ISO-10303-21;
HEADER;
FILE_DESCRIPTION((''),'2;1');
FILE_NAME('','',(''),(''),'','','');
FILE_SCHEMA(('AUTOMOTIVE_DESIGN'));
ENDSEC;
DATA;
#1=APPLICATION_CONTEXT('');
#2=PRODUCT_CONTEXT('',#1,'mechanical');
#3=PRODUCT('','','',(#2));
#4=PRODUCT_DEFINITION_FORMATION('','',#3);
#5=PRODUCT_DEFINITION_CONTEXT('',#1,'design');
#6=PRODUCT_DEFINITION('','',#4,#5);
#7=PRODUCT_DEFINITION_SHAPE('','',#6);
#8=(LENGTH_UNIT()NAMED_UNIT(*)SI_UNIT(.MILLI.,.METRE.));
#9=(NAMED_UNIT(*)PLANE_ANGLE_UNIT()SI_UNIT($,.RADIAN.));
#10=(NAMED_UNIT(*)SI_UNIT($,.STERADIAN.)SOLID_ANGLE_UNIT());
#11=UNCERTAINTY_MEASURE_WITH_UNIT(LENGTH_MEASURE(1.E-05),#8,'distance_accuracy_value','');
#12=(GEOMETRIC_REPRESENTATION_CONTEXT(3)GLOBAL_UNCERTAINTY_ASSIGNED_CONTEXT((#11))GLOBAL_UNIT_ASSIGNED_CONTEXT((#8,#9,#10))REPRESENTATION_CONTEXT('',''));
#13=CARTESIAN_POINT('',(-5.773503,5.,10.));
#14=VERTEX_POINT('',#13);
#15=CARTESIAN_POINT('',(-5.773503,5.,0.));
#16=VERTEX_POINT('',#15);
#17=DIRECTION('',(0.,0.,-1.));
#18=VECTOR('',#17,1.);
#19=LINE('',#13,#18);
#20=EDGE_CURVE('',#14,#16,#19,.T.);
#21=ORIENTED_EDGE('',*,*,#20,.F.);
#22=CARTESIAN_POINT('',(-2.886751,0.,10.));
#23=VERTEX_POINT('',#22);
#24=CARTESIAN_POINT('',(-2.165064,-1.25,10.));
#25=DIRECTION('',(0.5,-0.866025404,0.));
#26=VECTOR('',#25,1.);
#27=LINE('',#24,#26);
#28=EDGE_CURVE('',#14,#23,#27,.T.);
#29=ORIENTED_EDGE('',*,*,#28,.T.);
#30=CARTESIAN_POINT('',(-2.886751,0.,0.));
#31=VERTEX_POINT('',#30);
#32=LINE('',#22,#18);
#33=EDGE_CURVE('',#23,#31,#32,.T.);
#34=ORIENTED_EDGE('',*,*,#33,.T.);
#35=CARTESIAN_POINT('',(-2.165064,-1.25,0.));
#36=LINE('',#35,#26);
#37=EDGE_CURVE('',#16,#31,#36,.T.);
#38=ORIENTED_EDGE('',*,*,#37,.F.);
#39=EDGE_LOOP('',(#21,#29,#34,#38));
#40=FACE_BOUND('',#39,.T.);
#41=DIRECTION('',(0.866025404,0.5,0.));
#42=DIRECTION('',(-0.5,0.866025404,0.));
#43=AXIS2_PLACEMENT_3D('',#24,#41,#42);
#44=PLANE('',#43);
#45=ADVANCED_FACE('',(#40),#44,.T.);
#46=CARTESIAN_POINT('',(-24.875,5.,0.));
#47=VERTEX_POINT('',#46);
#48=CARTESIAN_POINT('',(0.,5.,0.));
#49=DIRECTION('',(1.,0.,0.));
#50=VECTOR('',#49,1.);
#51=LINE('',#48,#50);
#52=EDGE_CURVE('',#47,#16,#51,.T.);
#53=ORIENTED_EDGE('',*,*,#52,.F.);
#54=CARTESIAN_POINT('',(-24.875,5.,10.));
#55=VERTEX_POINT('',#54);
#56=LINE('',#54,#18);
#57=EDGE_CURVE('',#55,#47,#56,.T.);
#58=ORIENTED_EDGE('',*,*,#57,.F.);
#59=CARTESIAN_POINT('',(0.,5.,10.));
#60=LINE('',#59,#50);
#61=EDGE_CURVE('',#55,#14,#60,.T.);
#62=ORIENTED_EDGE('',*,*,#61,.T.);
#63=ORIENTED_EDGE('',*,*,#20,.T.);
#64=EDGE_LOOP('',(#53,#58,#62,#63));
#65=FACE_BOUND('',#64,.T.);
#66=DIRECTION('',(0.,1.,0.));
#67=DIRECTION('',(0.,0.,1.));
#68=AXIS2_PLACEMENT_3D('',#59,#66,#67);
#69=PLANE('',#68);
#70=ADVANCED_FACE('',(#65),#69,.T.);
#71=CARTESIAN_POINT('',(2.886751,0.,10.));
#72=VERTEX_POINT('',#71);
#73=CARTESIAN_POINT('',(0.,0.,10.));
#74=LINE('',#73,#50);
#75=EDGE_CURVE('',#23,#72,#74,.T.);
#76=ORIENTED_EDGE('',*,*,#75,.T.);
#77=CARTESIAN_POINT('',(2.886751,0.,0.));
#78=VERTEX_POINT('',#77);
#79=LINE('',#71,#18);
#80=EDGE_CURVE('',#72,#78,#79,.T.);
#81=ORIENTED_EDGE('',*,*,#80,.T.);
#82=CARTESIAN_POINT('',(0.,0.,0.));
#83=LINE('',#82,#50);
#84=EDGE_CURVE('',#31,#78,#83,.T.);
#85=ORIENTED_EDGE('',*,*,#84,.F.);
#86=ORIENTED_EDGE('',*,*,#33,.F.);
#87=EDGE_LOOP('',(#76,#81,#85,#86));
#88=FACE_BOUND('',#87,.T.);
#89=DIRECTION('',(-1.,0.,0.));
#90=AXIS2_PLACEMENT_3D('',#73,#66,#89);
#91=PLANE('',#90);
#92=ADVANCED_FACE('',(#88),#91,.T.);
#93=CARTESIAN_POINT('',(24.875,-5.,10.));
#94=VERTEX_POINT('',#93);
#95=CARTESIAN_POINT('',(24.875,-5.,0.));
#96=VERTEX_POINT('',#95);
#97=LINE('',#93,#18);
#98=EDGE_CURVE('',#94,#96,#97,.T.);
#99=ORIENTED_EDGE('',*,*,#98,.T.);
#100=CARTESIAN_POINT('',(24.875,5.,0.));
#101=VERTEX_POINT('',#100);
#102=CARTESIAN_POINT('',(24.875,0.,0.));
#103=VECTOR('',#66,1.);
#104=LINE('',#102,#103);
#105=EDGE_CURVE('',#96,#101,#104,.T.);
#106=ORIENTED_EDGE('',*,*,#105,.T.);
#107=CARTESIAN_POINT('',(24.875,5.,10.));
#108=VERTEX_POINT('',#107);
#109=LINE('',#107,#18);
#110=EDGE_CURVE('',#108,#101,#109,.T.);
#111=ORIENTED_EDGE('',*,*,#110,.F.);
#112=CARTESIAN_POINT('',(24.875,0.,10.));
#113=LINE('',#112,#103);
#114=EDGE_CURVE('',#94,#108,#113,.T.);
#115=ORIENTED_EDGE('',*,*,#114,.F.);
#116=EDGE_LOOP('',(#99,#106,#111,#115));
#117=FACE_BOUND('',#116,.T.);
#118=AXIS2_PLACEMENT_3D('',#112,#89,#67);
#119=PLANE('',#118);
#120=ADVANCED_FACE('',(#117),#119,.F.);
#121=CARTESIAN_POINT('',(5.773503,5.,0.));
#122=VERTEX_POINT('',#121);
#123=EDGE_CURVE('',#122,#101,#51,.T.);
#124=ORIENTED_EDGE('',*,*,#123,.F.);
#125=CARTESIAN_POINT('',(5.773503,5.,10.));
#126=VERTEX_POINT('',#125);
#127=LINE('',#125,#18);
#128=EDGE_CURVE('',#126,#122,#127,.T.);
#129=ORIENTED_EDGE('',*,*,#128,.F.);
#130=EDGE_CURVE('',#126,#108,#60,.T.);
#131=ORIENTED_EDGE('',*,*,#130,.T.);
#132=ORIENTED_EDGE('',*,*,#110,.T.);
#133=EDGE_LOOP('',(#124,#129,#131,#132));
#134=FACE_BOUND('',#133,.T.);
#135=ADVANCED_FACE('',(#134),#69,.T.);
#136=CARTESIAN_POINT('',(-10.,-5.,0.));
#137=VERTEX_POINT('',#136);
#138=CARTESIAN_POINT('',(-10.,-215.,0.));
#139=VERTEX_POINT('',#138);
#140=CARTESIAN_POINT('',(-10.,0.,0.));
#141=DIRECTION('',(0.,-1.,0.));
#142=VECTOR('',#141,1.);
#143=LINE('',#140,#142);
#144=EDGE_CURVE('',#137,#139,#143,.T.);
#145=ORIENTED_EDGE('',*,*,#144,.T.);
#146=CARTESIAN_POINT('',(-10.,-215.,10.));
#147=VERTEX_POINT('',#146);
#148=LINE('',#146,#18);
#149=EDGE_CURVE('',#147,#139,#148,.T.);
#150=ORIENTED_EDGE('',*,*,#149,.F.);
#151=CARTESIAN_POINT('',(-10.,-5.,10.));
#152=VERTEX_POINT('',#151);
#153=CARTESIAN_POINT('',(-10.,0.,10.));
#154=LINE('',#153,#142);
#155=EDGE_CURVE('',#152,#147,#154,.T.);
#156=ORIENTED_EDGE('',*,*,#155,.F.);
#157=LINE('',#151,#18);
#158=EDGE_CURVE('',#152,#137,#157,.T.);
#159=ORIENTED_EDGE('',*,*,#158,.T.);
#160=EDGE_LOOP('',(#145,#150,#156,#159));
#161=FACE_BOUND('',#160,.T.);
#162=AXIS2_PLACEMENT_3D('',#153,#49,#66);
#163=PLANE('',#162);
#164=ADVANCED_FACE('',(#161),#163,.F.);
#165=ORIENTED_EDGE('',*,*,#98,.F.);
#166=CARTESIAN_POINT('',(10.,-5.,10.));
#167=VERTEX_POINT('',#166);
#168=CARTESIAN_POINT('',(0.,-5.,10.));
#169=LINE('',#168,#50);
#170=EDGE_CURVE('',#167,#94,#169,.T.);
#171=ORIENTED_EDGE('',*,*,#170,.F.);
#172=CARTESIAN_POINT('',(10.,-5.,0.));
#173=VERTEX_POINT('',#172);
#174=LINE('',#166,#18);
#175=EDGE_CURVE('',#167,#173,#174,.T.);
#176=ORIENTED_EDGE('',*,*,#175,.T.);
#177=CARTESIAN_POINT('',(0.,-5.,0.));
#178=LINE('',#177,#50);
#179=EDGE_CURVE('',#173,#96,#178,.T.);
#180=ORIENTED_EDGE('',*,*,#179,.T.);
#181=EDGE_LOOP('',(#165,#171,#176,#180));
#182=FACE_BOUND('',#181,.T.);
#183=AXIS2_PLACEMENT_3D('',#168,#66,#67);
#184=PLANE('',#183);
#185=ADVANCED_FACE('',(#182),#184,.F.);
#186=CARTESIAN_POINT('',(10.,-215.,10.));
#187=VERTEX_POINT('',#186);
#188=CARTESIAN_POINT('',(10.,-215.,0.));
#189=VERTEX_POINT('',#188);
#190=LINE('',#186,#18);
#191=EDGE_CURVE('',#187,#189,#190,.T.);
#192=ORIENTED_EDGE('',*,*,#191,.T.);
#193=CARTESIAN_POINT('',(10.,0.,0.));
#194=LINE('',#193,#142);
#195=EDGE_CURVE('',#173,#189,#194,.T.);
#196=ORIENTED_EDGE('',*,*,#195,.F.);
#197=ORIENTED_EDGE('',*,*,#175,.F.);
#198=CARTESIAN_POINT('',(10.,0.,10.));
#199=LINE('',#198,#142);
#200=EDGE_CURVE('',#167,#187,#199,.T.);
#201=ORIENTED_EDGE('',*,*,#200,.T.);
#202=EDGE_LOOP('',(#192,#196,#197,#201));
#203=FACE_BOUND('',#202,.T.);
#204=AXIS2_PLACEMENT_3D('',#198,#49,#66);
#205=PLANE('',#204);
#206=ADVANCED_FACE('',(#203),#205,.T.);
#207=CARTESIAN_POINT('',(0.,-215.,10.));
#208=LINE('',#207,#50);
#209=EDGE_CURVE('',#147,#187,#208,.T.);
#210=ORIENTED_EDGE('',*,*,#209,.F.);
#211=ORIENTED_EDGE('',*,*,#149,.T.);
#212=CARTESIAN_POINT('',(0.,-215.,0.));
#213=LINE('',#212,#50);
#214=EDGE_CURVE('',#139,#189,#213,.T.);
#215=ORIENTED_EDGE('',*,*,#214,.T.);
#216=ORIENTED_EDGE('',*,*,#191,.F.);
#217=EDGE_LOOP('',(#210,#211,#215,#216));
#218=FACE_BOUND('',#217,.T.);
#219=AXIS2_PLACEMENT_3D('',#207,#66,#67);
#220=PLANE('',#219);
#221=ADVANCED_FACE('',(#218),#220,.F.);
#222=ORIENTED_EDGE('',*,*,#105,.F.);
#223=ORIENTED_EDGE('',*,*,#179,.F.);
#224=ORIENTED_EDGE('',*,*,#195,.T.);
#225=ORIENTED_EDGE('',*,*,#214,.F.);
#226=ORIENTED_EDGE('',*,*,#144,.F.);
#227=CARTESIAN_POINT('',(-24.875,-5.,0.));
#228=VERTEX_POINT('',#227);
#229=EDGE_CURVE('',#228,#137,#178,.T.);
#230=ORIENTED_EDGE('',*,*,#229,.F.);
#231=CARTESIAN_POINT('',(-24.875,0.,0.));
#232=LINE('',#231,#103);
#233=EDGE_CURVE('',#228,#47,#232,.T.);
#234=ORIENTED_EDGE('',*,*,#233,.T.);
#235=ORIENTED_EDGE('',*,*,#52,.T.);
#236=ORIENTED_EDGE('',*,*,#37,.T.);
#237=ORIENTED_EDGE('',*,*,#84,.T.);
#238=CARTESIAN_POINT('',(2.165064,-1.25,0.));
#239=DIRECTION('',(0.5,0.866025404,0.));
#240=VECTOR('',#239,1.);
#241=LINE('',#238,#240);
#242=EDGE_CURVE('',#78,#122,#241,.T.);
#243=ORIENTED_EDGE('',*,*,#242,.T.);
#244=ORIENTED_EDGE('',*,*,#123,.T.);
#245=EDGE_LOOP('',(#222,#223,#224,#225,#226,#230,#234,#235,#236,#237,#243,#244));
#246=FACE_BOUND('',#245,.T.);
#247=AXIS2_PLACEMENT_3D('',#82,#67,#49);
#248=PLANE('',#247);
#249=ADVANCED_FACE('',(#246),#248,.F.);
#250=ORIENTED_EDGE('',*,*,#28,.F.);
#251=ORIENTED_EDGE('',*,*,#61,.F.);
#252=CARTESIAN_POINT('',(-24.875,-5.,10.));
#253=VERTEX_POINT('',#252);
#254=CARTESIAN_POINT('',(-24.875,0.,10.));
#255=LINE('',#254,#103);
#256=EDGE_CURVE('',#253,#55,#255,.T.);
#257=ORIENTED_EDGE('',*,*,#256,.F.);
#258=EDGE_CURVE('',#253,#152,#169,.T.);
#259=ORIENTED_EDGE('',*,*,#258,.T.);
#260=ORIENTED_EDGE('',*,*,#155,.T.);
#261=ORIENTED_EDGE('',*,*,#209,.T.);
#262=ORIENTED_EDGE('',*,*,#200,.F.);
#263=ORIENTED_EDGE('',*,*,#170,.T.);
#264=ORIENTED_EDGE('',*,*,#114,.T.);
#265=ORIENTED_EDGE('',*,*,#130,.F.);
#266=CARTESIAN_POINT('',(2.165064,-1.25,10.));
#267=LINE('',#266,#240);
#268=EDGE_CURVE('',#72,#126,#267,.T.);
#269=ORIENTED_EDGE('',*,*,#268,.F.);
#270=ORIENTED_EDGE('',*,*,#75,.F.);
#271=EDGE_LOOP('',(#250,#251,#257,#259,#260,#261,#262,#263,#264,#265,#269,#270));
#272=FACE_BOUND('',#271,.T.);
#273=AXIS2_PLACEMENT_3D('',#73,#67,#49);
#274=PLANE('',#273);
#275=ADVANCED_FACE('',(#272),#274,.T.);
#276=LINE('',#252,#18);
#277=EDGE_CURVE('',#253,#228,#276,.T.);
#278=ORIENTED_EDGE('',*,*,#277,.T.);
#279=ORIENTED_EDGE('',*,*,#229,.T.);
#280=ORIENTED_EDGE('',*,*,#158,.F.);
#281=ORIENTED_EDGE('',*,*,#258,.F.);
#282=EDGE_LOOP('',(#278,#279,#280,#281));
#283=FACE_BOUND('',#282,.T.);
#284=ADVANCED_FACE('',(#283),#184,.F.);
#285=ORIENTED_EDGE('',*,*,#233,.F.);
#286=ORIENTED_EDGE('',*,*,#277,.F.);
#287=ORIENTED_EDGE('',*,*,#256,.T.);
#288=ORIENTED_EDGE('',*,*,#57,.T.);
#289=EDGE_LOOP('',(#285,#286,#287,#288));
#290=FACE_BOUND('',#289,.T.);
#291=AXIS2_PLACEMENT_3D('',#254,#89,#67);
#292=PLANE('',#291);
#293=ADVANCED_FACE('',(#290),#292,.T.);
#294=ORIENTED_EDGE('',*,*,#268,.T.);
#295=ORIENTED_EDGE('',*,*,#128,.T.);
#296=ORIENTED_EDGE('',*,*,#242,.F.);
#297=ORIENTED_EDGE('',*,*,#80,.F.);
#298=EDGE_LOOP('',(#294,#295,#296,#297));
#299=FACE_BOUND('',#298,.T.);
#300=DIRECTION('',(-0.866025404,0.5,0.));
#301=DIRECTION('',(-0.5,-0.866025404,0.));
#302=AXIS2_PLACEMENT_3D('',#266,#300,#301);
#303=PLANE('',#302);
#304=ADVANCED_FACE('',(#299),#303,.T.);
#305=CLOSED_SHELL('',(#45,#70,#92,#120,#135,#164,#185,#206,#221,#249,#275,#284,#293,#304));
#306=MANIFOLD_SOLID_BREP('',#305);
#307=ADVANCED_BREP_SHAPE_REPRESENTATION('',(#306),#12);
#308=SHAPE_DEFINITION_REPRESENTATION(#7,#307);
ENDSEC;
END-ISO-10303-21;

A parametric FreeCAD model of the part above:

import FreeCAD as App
import Part
import Sketcher

V = App.Vector
Q = App.Units.Quantity

doc = App.newDocument("Part")
body = doc.addObject("PartDesign::Body", "Body")

# Sketch on XY plane
sketch1 = body.newObject("Sketcher::SketchObject", "Sketch")
sketch1.AttachmentSupport = (doc.getObject("XY_Plane"), [""])
sketch1.MapMode = "FlatFace"
sketch1.addGeometry([
    Part.LineSegment(V(-10, -215, 0), V(10, -215, 0)),  # 0
    Part.LineSegment(V(10, -215, 0), V(10, -5, 0)),  # 1
    Part.LineSegment(V(10, -5, 0), V(25, -5, 0)),  # 2
    Part.LineSegment(V(25, -5, 0), V(25, 5, 0)),  # 3
    Part.LineSegment(V(25, 5, 0), V(6, 5, 0)),  # 4
    Part.LineSegment(V(6, 5, 0), V(3, 0, 0)),  # 5
    Part.LineSegment(V(3, 0, 0), V(-3, 0, 0)),  # 6
    Part.LineSegment(V(-3, 0, 0), V(-6, 5, 0)),  # 7
    Part.LineSegment(V(-6, 5, 0), V(-25, 5, 0)),  # 8
    Part.LineSegment(V(-25, 5, 0), V(-25, -5, 0)),  # 9
    Part.LineSegment(V(-25, -5, 0), V(-10, -5, 0)),  # 10
    Part.LineSegment(V(-10, -5, 0), V(-10, -215, 0)),  # 11
], False)
sketch1.addConstraint([
    Sketcher.Constraint("Coincident", 0, 2, 1, 1),
    Sketcher.Constraint("Coincident", 1, 2, 2, 1),
    Sketcher.Constraint("Coincident", 2, 2, 3, 1),
    Sketcher.Constraint("Coincident", 3, 2, 4, 1),
    Sketcher.Constraint("Coincident", 4, 2, 5, 1),
    Sketcher.Constraint("Coincident", 5, 2, 6, 1),
    Sketcher.Constraint("Coincident", 6, 2, 7, 1),
    Sketcher.Constraint("Coincident", 7, 2, 8, 1),
    Sketcher.Constraint("Coincident", 8, 2, 9, 1),
    Sketcher.Constraint("Coincident", 9, 2, 10, 1),
    Sketcher.Constraint("Coincident", 10, 2, 11, 1),
    Sketcher.Constraint("Coincident", 11, 2, 0, 1),
    Sketcher.Constraint("Horizontal", 0),
    Sketcher.Constraint("Vertical", 1),
    Sketcher.Constraint("Horizontal", 2),
    Sketcher.Constraint("Vertical", 3),
    Sketcher.Constraint("Horizontal", 4),
    Sketcher.Constraint("Horizontal", 6),
    Sketcher.Constraint("Horizontal", 8),
    Sketcher.Constraint("Vertical", 9),
    Sketcher.Constraint("Horizontal", 10),
    Sketcher.Constraint("Vertical", 11),
    Sketcher.Constraint("Symmetric", 5, 2, 6, 2, -1, 1),
    Sketcher.Constraint("Symmetric", 2, 2, 8, 2, -1, 1),
    Sketcher.Constraint("Symmetric", 4, 2, 7, 2, -2),
    Sketcher.Constraint("Symmetric", 1, 2, 10, 2, -2),
    Sketcher.Constraint("DistanceX", 0, 1, 0, 2, Q("20 mm")),
    Sketcher.Constraint("DistanceY", 1, 1, 1, 2, Q("210 mm")),
    Sketcher.Constraint("DistanceY", 3, 1, 3, 2, Q("10 mm")),
    Sketcher.Constraint("Angle", 5, Q("-120 deg")),
    Sketcher.Constraint("DistanceX", 2, 1, 2, 2, Q("14.875 mm")),
    Sketcher.Constraint("DistanceX", 4, 2, 4, 1, Q("19.101497 mm")),
])
pad1 = body.newObject("PartDesign::Pad", "Pad")
pad1.Profile = sketch1
pad1.Length = 10

doc.recompute()
